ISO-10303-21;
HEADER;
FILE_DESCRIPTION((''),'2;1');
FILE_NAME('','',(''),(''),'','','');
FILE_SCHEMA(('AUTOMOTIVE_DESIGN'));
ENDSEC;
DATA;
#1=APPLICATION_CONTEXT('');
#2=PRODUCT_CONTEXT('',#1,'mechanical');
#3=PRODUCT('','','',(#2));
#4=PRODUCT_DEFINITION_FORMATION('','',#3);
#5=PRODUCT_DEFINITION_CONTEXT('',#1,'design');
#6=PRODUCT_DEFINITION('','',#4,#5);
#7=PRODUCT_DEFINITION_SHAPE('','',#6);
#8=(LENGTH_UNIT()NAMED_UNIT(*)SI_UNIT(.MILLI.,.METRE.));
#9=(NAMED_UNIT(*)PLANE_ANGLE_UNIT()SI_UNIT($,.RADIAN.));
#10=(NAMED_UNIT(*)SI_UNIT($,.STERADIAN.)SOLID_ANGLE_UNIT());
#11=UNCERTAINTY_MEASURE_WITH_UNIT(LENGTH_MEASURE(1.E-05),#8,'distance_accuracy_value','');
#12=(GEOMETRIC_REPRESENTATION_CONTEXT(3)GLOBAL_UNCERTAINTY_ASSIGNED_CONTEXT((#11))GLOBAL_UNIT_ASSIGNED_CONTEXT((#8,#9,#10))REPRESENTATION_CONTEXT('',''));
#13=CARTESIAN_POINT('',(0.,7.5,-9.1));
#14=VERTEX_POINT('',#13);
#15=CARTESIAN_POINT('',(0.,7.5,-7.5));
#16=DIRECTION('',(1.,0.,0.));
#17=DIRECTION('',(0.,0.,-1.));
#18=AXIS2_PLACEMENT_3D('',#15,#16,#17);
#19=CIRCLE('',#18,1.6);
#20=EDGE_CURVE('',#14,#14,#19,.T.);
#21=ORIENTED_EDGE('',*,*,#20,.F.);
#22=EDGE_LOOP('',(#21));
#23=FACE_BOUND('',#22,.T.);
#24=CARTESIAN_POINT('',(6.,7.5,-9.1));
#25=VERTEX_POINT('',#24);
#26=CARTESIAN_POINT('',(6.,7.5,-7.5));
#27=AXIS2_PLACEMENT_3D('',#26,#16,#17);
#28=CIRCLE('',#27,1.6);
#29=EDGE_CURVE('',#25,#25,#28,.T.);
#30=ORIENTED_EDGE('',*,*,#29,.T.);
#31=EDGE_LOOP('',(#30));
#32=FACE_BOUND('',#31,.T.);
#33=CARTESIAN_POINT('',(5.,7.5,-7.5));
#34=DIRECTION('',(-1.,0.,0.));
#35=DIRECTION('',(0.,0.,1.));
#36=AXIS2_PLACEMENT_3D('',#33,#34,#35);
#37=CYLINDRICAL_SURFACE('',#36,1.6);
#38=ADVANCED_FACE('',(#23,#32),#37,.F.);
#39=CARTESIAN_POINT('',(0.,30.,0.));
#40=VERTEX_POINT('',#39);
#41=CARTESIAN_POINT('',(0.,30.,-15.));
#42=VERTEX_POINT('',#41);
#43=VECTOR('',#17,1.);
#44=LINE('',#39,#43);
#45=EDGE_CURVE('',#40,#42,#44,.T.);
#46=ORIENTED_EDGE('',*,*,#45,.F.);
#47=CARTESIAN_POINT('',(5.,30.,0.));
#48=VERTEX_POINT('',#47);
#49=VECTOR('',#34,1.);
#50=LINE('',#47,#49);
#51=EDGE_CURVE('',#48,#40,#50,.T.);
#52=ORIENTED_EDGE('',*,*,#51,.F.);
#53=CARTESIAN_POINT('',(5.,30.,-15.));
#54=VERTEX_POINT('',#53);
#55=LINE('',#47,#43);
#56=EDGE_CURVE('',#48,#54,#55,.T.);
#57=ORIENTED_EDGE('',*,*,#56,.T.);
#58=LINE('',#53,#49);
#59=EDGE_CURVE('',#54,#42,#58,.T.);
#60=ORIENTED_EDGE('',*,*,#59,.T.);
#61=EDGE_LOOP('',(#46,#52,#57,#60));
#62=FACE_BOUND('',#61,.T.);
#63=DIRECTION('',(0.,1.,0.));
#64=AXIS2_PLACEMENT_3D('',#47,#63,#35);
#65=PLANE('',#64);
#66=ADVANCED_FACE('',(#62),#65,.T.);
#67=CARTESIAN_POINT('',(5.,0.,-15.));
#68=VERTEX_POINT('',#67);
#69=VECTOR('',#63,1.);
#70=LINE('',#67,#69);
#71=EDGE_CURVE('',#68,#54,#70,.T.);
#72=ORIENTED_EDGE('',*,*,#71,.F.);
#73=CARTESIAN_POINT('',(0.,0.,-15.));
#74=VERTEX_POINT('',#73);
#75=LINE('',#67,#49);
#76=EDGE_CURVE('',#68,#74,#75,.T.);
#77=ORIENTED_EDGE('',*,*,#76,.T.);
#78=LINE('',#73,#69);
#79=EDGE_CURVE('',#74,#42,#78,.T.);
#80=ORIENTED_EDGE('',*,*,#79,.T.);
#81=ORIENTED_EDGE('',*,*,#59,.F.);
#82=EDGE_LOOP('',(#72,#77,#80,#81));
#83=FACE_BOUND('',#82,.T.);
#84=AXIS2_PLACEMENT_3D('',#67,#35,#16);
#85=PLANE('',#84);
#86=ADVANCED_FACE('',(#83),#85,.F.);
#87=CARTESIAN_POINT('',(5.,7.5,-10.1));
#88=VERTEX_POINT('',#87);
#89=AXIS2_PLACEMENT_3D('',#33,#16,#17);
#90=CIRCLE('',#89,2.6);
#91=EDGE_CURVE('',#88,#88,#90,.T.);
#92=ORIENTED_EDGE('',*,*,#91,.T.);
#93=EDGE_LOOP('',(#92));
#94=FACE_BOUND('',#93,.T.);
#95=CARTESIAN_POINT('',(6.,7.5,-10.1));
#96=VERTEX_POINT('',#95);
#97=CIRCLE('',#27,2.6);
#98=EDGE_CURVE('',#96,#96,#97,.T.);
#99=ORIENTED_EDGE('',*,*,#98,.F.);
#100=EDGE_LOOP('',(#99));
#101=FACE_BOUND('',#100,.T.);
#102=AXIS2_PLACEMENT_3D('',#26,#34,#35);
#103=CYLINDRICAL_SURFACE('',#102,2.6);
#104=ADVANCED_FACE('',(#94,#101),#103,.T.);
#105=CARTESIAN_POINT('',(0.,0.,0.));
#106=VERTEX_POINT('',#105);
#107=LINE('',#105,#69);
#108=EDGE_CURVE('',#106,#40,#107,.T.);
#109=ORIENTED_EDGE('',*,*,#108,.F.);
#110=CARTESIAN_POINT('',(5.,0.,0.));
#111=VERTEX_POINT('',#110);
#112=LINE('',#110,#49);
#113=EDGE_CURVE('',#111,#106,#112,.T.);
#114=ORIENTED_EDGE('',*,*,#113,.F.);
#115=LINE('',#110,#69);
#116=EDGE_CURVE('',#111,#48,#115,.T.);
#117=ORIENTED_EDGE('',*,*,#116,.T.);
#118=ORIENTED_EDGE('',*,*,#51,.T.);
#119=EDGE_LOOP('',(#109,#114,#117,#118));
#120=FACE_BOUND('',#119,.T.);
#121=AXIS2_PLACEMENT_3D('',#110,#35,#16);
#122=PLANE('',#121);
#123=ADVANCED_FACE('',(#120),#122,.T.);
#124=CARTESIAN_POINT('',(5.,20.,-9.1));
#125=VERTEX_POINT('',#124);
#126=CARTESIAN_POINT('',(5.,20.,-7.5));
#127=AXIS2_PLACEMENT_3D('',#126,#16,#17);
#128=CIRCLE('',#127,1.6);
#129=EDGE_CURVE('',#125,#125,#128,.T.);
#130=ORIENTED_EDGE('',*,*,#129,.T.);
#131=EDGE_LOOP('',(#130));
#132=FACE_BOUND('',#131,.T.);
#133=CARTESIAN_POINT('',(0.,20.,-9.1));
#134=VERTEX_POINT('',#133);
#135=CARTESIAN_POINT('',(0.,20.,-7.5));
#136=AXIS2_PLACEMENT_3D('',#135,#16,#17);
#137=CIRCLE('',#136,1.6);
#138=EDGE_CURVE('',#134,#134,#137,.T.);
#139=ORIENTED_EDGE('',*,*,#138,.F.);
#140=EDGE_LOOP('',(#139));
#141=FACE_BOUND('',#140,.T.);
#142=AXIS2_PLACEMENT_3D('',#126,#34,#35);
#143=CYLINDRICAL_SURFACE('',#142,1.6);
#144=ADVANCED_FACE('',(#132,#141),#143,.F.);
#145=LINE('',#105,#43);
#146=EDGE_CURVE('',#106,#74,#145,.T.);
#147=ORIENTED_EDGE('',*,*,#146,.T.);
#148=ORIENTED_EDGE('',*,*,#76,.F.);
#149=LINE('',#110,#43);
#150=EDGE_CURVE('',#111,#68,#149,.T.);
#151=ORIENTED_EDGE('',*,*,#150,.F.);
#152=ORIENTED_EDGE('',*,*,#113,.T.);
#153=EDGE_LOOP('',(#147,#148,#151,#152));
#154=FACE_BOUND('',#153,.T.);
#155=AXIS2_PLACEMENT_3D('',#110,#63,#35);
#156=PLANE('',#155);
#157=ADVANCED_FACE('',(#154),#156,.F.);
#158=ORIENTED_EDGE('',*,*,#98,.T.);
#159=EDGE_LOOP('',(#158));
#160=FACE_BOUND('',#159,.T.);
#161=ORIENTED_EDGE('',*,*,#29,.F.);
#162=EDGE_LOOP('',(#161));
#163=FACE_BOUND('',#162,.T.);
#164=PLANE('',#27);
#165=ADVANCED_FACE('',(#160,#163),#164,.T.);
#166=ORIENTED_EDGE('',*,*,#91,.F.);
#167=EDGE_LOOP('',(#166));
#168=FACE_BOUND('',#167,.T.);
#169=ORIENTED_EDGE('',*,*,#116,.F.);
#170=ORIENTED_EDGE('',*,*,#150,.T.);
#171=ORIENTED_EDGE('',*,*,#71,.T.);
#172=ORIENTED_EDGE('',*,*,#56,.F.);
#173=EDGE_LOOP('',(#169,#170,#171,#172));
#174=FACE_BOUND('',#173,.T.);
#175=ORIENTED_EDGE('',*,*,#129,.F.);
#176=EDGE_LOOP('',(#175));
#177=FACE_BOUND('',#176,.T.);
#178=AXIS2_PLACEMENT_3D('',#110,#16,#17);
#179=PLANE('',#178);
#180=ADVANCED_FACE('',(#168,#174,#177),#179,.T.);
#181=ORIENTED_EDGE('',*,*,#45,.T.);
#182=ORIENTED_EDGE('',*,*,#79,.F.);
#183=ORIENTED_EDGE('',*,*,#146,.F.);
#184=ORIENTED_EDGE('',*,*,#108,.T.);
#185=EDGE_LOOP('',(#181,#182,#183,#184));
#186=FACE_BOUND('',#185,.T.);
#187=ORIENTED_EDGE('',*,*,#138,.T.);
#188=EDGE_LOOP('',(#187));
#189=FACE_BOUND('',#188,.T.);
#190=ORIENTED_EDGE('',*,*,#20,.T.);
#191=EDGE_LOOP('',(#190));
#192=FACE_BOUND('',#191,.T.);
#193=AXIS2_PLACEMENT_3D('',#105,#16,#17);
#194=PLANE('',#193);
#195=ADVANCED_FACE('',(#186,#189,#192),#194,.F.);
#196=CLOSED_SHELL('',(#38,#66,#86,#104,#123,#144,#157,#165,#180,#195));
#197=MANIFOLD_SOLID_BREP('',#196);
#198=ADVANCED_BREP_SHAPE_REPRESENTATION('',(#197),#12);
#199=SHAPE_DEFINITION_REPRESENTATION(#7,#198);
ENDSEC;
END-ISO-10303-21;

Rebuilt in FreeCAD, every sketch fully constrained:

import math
import FreeCAD as App
import Part
import Sketcher
from FreeCAD import Vector

doc = App.newDocument("Part")
params = doc.addObject("Spreadsheet::Sheet", "Params")
for row, (alias, value) in enumerate([
    ("sketch1_radius", "1.6 mm"),
    ("sketch1_width", "30 mm"),
    ("sketch1_height", "15 mm"),
    ("pad1_length", "5 mm"),
    ("sketch2_diameter", "5.2 mm"),
    ("sketch2_diameter2", "3.2 mm"),
    ("pad2_length", "1 mm"),
], start=1):
    params.set(f"A{row}", alias)
    params.set(f"B{row}", "=" + value)
    params.setAlias(f"B{row}", alias)

body = doc.addObject("PartDesign::Body", "Body")

sketch1 = body.newObject("Sketcher::SketchObject", "Sketch")
sketch1.AttachmentSupport = (doc.getObject("YZ_Plane"), [""])
sketch1.MapMode = "FlatFace"
sketch1.addGeometry(Part.LineSegment(Vector(30, -15, 0), Vector(30, 0, 0)), False)
sketch1.addGeometry(Part.LineSegment(Vector(30, 0, 0), Vector(0, 0, 0)), False)
sketch1.addGeometry(Part.LineSegment(Vector(0, 0, 0), Vector(0, -15, 0)), False)
sketch1.addGeometry(Part.LineSegment(Vector(0, -15, 0), Vector(30, -15, 0)), False)
sketch1.addGeometry(Part.ArcOfCircle(Part.Circle(Vector(20, -7.5, 0), Vector(0, 0, 1), 1.6), math.radians(-90), math.radians(0)), False)
sketch1.addGeometry(Part.ArcOfCircle(Part.Circle(Vector(20, -7.5, 0), Vector(0, 0, 1), 1.6), math.radians(180), math.radians(270)), False)
sketch1.addGeometry(Part.ArcOfCircle(Part.Circle(Vector(20, -7.5, 0), Vector(0, 0, 1), 1.6), math.radians(0), math.radians(180)), False)
sketch1.addGeometry(Part.ArcOfCircle(Part.Circle(Vector(7.5, -7.5, 0), Vector(0, 0, 1), 1.6), math.radians(-90), math.radians(0)), False)
sketch1.addGeometry(Part.ArcOfCircle(Part.Circle(Vector(7.5, -7.5, 0), Vector(0, 0, 1), 1.6), math.radians(180), math.radians(270)), False)
sketch1.addGeometry(Part.ArcOfCircle(Part.Circle(Vector(7.5, -7.5, 0), Vector(0, 0, 1), 1.6), math.radians(0), math.radians(180)), False)
sketch1.addConstraint(Sketcher.Constraint("Coincident", 0, 2, 1, 1))
sketch1.addConstraint(Sketcher.Constraint("Coincident", 1, 2, 2, 1))
sketch1.addConstraint(Sketcher.Constraint("Coincident", 2, 2, 3, 1))
sketch1.addConstraint(Sketcher.Constraint("Coincident", 3, 2, 0, 1))
sketch1.addConstraint(Sketcher.Constraint("Tangent", 4, 1, 5, 2))
sketch1.addConstraint(Sketcher.Constraint("Tangent", 5, 1, 6, 2))
sketch1.addConstraint(Sketcher.Constraint("Tangent", 6, 1, 4, 2))
sketch1.addConstraint(Sketcher.Constraint("Tangent", 7, 1, 8, 2))
sketch1.addConstraint(Sketcher.Constraint("Tangent", 8, 1, 9, 2))
sketch1.addConstraint(Sketcher.Constraint("Tangent", 9, 1, 7, 2))
sketch1.addConstraint(Sketcher.Constraint("Vertical", 0))
sketch1.addConstraint(Sketcher.Constraint("Horizontal", 1))
sketch1.addConstraint(Sketcher.Constraint("Vertical", 2))
sketch1.addConstraint(Sketcher.Constraint("Horizontal", 3))
sketch1.addConstraint(Sketcher.Constraint("Coincident", 1, 2, -1, 1))
sketch1.addConstraint(Sketcher.Constraint("Equal", 6, 7))
sketch1.addConstraint(Sketcher.Constraint("Horizontal", 6, 3, 7, 3))
sketch1.addConstraint(Sketcher.Constraint("Horizontal", 9, 3, 5, 1))
sketch1.addConstraint(Sketcher.Constraint("Horizontal", 5, 1, 6, 1))
sketch1.addConstraint(Sketcher.Constraint("Horizontal", 6, 1, 8, 1))
sketch1.addConstraint(Sketcher.Constraint("Horizontal", 8, 1, 9, 1))
sketch1.addConstraint(Sketcher.Constraint("Vertical", 6, 3, 4, 1))
sketch1.addConstraint(Sketcher.Constraint("Vertical", 9, 3, 7, 1))
sketch1.addConstraint(Sketcher.Constraint("Radius", 4, 1.6))
sketch1.addConstraint(Sketcher.Constraint("DistanceX", 1, 2, 1, 1, 30.0))
sketch1.addConstraint(Sketcher.Constraint("DistanceY", 0, 1, 0, 2, 15.0))
sketch1.addConstraint(Sketcher.Constraint("DistanceX", -1, 1, 4, 3, 20.0))
sketch1.addConstraint(Sketcher.Constraint("DistanceY", 4, 3, -1, 1, 7.5))
sketch1.addConstraint(Sketcher.Constraint("DistanceX", -1, 1, 7, 3, 7.5))
sketch1.setExpression("Constraints[23]", "Params.sketch1_radius")
sketch1.setExpression("Constraints[24]", "Params.sketch1_width")
sketch1.setExpression("Constraints[25]", "Params.sketch1_height")
pad1 = body.newObject("PartDesign::Pad", "Pad")
pad1.Profile = sketch1
pad1.setExpression("Length", "Params.pad1_length")

sketch2 = body.newObject("Sketcher::SketchObject", "Sketch001")
sketch2.AttachmentSupport = (doc.getObject("YZ_Plane"), [""])
sketch2.MapMode = "FlatFace"
sketch2.AttachmentOffset = App.Placement(Vector(0, 0, 5), App.Rotation())
sketch2.addGeometry(Part.Circle(Vector(7.5, -7.5, 0), Vector(0, 0, 1), 2.6), False)
sketch2.addGeometry(Part.Circle(Vector(7.5, -7.5, 0), Vector(0, 0, 1), 1.6), False)
sketch2.addConstraint(Sketcher.Constraint("Coincident", 1, 3, 0, 3))
sketch2.addConstraint(Sketcher.Constraint("Diameter", 0, 5.2))
sketch2.addConstraint(Sketcher.Constraint("Diameter", 1, 3.2))
sketch2.addConstraint(Sketcher.Constraint("DistanceX", -1, 1, 0, 3, 7.5))
sketch2.addConstraint(Sketcher.Constraint("DistanceY", 0, 3, -1, 1, 7.5))
sketch2.setExpression("Constraints[1]", "Params.sketch2_diameter")
sketch2.setExpression("Constraints[2]", "Params.sketch2_diameter2")
pad2 = body.newObject("PartDesign::Pad", "Pad001")
pad2.Profile = sketch2
pad2.setExpression("Length", "Params.pad2_length")

doc.recompute()
